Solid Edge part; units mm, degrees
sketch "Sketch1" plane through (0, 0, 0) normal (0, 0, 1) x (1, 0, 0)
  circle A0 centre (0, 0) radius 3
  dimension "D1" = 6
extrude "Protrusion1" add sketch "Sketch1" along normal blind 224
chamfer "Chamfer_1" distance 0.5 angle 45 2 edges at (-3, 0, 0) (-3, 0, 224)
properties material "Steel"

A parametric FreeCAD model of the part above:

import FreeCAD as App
import Part
import Sketcher

V = App.Vector
Q = App.Units.Quantity


def edges_at(feature, points):
    """Names of the edges that pass closest to the given points."""
    edges = feature.Shape.Edges
    near = lambda p: min(range(len(edges)), key=lambda i: edges[i].distToShape(Part.Vertex(*p))[0])
    return sorted({f"Edge{near(p) + 1}" for p in points})

doc = App.newDocument("Part")
body = doc.addObject("PartDesign::Body", "Body")

# Sketch on XY plane
sketch1 = doc.addObject("Sketcher::SketchObject", "Sketch")
body.addObject(sketch1)
sketch1.AttachmentSupport = (doc.XY_Plane, [""])
sketch1.MapMode = "FlatFace"
sketch1.addGeometry(Part.Circle(V(0, 0, 0), V(0, 0, 1), 3), False)
sketch1.addConstraint(Sketcher.Constraint("Coincident", 0, 3, -1, 1))
sketch1.addConstraint(Sketcher.Constraint("Diameter", 0, Q("6 mm")))
pad1 = doc.addObject("PartDesign::Pad", "Pad")
body.addObject(pad1)
pad1.Profile = sketch1
pad1.Length = 224
doc.recompute()

chamfer = doc.addObject("PartDesign::Chamfer", "Chamfer")
body.addObject(chamfer)
chamfer.Base = (pad1, edges_at(pad1, [(-3, 0, 0), (-3, 0, 224)]))
chamfer.Size = 0.5

doc.recompute()
